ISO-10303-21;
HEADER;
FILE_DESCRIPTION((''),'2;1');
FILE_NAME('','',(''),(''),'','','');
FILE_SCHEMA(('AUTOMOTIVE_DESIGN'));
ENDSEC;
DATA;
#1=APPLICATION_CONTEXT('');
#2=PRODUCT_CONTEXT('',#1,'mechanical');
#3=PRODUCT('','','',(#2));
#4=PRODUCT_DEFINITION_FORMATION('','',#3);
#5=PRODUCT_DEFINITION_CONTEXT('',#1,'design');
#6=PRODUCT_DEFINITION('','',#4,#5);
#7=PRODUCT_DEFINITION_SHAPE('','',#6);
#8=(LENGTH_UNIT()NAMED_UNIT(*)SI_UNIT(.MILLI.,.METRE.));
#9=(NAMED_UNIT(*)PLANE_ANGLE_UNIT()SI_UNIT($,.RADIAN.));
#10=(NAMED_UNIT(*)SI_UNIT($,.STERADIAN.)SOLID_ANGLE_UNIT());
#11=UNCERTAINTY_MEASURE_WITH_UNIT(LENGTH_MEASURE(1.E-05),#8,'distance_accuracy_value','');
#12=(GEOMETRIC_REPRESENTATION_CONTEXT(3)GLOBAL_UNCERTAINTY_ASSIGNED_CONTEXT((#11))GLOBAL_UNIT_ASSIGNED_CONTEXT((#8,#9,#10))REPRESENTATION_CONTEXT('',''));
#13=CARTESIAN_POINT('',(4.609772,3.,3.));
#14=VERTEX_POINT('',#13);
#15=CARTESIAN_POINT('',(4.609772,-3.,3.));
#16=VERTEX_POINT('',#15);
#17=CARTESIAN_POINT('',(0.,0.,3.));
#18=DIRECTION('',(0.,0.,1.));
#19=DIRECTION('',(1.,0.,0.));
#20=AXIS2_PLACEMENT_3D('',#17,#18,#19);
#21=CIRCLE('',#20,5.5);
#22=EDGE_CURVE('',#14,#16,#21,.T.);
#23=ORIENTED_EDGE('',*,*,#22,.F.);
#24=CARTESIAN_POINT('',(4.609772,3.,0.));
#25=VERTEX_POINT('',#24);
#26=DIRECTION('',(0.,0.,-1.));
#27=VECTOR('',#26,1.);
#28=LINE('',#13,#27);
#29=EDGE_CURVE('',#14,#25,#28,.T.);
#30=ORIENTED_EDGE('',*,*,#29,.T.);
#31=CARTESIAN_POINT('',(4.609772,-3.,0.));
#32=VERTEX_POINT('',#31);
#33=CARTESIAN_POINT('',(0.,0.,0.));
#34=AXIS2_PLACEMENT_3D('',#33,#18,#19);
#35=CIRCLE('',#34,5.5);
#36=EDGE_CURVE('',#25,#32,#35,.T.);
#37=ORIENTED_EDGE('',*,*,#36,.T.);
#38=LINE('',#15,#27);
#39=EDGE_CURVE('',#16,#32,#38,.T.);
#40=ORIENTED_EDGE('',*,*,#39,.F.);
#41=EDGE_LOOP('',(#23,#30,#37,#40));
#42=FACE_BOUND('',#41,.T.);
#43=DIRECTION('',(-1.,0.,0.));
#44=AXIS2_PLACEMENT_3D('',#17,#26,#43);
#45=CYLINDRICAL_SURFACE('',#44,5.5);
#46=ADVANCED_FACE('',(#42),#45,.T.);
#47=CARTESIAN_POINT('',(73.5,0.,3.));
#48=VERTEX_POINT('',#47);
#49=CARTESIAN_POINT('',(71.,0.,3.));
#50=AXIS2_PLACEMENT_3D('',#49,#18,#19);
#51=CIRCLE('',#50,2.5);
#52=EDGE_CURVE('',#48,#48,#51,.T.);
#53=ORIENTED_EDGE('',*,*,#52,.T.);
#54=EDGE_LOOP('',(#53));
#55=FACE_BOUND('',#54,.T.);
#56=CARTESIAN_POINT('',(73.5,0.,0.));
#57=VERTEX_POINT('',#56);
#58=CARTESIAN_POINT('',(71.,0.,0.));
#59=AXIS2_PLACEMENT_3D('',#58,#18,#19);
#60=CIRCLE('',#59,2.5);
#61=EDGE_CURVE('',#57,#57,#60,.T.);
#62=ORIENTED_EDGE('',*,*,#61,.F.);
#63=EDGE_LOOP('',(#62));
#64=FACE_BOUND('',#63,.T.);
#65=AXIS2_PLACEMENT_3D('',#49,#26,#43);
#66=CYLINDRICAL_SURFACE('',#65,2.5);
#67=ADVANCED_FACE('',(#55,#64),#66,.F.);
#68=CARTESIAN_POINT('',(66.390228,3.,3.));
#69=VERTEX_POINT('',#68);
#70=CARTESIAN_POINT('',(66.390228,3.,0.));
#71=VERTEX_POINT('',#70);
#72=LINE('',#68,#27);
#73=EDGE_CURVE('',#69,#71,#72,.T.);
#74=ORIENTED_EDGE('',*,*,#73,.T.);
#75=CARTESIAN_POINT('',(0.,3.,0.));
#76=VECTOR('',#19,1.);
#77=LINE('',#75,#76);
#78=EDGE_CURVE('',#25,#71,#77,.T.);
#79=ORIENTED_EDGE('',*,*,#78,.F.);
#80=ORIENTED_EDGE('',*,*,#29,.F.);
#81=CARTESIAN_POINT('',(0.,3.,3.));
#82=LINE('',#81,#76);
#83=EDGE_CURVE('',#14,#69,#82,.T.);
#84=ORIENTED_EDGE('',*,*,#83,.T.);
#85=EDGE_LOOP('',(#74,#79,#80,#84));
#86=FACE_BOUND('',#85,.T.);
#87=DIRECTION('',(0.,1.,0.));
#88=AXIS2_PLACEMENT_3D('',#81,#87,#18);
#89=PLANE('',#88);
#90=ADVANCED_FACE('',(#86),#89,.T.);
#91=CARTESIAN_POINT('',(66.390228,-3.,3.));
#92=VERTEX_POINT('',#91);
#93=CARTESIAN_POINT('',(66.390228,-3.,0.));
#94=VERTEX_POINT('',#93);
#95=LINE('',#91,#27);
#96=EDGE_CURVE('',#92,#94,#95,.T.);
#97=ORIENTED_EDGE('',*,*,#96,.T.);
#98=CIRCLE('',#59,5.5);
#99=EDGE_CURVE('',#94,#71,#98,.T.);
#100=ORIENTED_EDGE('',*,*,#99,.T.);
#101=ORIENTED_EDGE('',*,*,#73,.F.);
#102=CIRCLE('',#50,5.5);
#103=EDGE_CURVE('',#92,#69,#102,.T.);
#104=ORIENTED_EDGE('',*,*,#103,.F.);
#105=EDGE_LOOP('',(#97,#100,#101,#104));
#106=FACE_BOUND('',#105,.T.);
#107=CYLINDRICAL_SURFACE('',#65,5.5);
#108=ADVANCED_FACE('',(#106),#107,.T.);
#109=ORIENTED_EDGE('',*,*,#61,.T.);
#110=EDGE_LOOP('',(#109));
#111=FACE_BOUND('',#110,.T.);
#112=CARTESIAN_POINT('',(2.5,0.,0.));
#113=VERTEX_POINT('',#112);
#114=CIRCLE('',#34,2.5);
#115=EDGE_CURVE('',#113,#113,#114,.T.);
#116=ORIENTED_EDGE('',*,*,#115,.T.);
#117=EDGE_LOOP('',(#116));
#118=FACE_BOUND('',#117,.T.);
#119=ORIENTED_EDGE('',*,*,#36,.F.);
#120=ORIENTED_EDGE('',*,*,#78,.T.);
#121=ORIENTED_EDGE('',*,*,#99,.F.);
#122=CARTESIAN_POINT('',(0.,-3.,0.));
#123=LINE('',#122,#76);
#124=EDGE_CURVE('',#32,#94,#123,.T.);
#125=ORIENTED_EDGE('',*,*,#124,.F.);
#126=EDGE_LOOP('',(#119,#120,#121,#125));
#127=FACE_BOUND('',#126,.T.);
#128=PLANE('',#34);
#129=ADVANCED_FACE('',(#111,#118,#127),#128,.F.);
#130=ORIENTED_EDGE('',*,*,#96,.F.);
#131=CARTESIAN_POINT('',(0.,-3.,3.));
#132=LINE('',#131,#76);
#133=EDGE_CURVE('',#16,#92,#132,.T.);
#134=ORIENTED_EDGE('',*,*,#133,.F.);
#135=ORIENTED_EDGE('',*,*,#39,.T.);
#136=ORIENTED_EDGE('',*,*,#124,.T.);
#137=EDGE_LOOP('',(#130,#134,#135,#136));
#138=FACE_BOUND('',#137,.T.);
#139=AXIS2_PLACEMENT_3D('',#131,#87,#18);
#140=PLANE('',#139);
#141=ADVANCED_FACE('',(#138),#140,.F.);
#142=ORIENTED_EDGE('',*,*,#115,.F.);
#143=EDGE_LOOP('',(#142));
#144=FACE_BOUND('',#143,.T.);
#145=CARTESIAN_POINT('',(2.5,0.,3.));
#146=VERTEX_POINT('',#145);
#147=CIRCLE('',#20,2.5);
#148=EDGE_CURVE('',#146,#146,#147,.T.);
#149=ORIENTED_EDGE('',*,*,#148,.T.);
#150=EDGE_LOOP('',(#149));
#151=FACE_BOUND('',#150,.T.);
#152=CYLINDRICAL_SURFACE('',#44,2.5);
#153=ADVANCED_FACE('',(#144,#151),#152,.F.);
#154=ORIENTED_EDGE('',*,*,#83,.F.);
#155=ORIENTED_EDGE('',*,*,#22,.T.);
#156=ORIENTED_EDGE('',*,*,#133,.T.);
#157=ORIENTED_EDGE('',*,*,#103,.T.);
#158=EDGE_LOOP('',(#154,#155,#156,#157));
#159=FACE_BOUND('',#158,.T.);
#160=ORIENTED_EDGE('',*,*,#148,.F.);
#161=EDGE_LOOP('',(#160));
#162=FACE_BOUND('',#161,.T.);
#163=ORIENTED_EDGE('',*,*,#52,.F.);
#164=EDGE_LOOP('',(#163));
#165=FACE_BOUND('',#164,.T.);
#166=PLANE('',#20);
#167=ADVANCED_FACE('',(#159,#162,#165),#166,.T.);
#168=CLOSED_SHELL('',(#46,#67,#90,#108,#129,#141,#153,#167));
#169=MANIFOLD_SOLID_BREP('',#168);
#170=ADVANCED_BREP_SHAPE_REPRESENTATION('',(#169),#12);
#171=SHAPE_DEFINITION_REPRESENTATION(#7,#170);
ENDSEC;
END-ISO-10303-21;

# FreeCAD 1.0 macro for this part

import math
import FreeCAD as App
import Part
import Sketcher

V = App.Vector
Q = App.Units.Quantity

doc = App.newDocument("Part")
body = doc.addObject("PartDesign::Body", "Body")

sketch1 = body.newObject("Sketcher::SketchObject", "Sketch")
sketch1.AttachmentSupport = (doc.getObject("XY_Plane"), [""])
sketch1.MapMode = "FlatFace"
sketch1.addGeometry([
    Part.ArcOfCircle(Part.Circle(V(0, 0, 0), V(0, 0, 1), 5.5), math.radians(33), math.radians(327)),
    Part.LineSegment(V(4.6, -3, 0), V(66.4, -3, 0)),
    Part.ArcOfCircle(Part.Circle(V(71, 0, 0), V(0, 0, 1), 5.5), math.radians(-147), math.radians(147)),
    Part.LineSegment(V(66.4, 3, 0), V(4.6, 3, 0)),
    Part.Circle(V(0, 0, 0), V(0, 0, 1), 2.5),
    Part.Circle(V(71, 0, 0), V(0, 0, 1), 2.5),
], False)
sketch1.addConstraint([
    Sketcher.Constraint("Coincident", 0, 2, 1, 1),
    Sketcher.Constraint("Coincident", 1, 2, 2, 1),
    Sketcher.Constraint("Coincident", 2, 2, 3, 1),
    Sketcher.Constraint("Coincident", 3, 2, 0, 1),
    Sketcher.Constraint("Horizontal", 1),
    Sketcher.Constraint("Horizontal", 3),
    Sketcher.Constraint("Coincident", 0, 3, -1, 1),
    Sketcher.Constraint("Coincident", 4, 3, -1, 1),
    Sketcher.Constraint("Coincident", 5, 3, 2, 3),
    Sketcher.Constraint("Equal", 0, 2),
    Sketcher.Constraint("Equal", 4, 5),
    Sketcher.Constraint("Symmetric", 1, 2, 2, 2, -1),
    Sketcher.Constraint("Diameter", 4, Q("5 mm")),
    Sketcher.Constraint("Radius", 0, Q("5.5 mm")),
    Sketcher.Constraint("DistanceX", -1, 1, 2, 3, Q("71 mm")),
    Sketcher.Constraint("DistanceY", 0, 2, -1, 1, Q("3 mm")),
])
pad1 = body.newObject("PartDesign::Pad", "Pad")
pad1.Profile = sketch1
pad1.Length = 3

doc.recompute()
